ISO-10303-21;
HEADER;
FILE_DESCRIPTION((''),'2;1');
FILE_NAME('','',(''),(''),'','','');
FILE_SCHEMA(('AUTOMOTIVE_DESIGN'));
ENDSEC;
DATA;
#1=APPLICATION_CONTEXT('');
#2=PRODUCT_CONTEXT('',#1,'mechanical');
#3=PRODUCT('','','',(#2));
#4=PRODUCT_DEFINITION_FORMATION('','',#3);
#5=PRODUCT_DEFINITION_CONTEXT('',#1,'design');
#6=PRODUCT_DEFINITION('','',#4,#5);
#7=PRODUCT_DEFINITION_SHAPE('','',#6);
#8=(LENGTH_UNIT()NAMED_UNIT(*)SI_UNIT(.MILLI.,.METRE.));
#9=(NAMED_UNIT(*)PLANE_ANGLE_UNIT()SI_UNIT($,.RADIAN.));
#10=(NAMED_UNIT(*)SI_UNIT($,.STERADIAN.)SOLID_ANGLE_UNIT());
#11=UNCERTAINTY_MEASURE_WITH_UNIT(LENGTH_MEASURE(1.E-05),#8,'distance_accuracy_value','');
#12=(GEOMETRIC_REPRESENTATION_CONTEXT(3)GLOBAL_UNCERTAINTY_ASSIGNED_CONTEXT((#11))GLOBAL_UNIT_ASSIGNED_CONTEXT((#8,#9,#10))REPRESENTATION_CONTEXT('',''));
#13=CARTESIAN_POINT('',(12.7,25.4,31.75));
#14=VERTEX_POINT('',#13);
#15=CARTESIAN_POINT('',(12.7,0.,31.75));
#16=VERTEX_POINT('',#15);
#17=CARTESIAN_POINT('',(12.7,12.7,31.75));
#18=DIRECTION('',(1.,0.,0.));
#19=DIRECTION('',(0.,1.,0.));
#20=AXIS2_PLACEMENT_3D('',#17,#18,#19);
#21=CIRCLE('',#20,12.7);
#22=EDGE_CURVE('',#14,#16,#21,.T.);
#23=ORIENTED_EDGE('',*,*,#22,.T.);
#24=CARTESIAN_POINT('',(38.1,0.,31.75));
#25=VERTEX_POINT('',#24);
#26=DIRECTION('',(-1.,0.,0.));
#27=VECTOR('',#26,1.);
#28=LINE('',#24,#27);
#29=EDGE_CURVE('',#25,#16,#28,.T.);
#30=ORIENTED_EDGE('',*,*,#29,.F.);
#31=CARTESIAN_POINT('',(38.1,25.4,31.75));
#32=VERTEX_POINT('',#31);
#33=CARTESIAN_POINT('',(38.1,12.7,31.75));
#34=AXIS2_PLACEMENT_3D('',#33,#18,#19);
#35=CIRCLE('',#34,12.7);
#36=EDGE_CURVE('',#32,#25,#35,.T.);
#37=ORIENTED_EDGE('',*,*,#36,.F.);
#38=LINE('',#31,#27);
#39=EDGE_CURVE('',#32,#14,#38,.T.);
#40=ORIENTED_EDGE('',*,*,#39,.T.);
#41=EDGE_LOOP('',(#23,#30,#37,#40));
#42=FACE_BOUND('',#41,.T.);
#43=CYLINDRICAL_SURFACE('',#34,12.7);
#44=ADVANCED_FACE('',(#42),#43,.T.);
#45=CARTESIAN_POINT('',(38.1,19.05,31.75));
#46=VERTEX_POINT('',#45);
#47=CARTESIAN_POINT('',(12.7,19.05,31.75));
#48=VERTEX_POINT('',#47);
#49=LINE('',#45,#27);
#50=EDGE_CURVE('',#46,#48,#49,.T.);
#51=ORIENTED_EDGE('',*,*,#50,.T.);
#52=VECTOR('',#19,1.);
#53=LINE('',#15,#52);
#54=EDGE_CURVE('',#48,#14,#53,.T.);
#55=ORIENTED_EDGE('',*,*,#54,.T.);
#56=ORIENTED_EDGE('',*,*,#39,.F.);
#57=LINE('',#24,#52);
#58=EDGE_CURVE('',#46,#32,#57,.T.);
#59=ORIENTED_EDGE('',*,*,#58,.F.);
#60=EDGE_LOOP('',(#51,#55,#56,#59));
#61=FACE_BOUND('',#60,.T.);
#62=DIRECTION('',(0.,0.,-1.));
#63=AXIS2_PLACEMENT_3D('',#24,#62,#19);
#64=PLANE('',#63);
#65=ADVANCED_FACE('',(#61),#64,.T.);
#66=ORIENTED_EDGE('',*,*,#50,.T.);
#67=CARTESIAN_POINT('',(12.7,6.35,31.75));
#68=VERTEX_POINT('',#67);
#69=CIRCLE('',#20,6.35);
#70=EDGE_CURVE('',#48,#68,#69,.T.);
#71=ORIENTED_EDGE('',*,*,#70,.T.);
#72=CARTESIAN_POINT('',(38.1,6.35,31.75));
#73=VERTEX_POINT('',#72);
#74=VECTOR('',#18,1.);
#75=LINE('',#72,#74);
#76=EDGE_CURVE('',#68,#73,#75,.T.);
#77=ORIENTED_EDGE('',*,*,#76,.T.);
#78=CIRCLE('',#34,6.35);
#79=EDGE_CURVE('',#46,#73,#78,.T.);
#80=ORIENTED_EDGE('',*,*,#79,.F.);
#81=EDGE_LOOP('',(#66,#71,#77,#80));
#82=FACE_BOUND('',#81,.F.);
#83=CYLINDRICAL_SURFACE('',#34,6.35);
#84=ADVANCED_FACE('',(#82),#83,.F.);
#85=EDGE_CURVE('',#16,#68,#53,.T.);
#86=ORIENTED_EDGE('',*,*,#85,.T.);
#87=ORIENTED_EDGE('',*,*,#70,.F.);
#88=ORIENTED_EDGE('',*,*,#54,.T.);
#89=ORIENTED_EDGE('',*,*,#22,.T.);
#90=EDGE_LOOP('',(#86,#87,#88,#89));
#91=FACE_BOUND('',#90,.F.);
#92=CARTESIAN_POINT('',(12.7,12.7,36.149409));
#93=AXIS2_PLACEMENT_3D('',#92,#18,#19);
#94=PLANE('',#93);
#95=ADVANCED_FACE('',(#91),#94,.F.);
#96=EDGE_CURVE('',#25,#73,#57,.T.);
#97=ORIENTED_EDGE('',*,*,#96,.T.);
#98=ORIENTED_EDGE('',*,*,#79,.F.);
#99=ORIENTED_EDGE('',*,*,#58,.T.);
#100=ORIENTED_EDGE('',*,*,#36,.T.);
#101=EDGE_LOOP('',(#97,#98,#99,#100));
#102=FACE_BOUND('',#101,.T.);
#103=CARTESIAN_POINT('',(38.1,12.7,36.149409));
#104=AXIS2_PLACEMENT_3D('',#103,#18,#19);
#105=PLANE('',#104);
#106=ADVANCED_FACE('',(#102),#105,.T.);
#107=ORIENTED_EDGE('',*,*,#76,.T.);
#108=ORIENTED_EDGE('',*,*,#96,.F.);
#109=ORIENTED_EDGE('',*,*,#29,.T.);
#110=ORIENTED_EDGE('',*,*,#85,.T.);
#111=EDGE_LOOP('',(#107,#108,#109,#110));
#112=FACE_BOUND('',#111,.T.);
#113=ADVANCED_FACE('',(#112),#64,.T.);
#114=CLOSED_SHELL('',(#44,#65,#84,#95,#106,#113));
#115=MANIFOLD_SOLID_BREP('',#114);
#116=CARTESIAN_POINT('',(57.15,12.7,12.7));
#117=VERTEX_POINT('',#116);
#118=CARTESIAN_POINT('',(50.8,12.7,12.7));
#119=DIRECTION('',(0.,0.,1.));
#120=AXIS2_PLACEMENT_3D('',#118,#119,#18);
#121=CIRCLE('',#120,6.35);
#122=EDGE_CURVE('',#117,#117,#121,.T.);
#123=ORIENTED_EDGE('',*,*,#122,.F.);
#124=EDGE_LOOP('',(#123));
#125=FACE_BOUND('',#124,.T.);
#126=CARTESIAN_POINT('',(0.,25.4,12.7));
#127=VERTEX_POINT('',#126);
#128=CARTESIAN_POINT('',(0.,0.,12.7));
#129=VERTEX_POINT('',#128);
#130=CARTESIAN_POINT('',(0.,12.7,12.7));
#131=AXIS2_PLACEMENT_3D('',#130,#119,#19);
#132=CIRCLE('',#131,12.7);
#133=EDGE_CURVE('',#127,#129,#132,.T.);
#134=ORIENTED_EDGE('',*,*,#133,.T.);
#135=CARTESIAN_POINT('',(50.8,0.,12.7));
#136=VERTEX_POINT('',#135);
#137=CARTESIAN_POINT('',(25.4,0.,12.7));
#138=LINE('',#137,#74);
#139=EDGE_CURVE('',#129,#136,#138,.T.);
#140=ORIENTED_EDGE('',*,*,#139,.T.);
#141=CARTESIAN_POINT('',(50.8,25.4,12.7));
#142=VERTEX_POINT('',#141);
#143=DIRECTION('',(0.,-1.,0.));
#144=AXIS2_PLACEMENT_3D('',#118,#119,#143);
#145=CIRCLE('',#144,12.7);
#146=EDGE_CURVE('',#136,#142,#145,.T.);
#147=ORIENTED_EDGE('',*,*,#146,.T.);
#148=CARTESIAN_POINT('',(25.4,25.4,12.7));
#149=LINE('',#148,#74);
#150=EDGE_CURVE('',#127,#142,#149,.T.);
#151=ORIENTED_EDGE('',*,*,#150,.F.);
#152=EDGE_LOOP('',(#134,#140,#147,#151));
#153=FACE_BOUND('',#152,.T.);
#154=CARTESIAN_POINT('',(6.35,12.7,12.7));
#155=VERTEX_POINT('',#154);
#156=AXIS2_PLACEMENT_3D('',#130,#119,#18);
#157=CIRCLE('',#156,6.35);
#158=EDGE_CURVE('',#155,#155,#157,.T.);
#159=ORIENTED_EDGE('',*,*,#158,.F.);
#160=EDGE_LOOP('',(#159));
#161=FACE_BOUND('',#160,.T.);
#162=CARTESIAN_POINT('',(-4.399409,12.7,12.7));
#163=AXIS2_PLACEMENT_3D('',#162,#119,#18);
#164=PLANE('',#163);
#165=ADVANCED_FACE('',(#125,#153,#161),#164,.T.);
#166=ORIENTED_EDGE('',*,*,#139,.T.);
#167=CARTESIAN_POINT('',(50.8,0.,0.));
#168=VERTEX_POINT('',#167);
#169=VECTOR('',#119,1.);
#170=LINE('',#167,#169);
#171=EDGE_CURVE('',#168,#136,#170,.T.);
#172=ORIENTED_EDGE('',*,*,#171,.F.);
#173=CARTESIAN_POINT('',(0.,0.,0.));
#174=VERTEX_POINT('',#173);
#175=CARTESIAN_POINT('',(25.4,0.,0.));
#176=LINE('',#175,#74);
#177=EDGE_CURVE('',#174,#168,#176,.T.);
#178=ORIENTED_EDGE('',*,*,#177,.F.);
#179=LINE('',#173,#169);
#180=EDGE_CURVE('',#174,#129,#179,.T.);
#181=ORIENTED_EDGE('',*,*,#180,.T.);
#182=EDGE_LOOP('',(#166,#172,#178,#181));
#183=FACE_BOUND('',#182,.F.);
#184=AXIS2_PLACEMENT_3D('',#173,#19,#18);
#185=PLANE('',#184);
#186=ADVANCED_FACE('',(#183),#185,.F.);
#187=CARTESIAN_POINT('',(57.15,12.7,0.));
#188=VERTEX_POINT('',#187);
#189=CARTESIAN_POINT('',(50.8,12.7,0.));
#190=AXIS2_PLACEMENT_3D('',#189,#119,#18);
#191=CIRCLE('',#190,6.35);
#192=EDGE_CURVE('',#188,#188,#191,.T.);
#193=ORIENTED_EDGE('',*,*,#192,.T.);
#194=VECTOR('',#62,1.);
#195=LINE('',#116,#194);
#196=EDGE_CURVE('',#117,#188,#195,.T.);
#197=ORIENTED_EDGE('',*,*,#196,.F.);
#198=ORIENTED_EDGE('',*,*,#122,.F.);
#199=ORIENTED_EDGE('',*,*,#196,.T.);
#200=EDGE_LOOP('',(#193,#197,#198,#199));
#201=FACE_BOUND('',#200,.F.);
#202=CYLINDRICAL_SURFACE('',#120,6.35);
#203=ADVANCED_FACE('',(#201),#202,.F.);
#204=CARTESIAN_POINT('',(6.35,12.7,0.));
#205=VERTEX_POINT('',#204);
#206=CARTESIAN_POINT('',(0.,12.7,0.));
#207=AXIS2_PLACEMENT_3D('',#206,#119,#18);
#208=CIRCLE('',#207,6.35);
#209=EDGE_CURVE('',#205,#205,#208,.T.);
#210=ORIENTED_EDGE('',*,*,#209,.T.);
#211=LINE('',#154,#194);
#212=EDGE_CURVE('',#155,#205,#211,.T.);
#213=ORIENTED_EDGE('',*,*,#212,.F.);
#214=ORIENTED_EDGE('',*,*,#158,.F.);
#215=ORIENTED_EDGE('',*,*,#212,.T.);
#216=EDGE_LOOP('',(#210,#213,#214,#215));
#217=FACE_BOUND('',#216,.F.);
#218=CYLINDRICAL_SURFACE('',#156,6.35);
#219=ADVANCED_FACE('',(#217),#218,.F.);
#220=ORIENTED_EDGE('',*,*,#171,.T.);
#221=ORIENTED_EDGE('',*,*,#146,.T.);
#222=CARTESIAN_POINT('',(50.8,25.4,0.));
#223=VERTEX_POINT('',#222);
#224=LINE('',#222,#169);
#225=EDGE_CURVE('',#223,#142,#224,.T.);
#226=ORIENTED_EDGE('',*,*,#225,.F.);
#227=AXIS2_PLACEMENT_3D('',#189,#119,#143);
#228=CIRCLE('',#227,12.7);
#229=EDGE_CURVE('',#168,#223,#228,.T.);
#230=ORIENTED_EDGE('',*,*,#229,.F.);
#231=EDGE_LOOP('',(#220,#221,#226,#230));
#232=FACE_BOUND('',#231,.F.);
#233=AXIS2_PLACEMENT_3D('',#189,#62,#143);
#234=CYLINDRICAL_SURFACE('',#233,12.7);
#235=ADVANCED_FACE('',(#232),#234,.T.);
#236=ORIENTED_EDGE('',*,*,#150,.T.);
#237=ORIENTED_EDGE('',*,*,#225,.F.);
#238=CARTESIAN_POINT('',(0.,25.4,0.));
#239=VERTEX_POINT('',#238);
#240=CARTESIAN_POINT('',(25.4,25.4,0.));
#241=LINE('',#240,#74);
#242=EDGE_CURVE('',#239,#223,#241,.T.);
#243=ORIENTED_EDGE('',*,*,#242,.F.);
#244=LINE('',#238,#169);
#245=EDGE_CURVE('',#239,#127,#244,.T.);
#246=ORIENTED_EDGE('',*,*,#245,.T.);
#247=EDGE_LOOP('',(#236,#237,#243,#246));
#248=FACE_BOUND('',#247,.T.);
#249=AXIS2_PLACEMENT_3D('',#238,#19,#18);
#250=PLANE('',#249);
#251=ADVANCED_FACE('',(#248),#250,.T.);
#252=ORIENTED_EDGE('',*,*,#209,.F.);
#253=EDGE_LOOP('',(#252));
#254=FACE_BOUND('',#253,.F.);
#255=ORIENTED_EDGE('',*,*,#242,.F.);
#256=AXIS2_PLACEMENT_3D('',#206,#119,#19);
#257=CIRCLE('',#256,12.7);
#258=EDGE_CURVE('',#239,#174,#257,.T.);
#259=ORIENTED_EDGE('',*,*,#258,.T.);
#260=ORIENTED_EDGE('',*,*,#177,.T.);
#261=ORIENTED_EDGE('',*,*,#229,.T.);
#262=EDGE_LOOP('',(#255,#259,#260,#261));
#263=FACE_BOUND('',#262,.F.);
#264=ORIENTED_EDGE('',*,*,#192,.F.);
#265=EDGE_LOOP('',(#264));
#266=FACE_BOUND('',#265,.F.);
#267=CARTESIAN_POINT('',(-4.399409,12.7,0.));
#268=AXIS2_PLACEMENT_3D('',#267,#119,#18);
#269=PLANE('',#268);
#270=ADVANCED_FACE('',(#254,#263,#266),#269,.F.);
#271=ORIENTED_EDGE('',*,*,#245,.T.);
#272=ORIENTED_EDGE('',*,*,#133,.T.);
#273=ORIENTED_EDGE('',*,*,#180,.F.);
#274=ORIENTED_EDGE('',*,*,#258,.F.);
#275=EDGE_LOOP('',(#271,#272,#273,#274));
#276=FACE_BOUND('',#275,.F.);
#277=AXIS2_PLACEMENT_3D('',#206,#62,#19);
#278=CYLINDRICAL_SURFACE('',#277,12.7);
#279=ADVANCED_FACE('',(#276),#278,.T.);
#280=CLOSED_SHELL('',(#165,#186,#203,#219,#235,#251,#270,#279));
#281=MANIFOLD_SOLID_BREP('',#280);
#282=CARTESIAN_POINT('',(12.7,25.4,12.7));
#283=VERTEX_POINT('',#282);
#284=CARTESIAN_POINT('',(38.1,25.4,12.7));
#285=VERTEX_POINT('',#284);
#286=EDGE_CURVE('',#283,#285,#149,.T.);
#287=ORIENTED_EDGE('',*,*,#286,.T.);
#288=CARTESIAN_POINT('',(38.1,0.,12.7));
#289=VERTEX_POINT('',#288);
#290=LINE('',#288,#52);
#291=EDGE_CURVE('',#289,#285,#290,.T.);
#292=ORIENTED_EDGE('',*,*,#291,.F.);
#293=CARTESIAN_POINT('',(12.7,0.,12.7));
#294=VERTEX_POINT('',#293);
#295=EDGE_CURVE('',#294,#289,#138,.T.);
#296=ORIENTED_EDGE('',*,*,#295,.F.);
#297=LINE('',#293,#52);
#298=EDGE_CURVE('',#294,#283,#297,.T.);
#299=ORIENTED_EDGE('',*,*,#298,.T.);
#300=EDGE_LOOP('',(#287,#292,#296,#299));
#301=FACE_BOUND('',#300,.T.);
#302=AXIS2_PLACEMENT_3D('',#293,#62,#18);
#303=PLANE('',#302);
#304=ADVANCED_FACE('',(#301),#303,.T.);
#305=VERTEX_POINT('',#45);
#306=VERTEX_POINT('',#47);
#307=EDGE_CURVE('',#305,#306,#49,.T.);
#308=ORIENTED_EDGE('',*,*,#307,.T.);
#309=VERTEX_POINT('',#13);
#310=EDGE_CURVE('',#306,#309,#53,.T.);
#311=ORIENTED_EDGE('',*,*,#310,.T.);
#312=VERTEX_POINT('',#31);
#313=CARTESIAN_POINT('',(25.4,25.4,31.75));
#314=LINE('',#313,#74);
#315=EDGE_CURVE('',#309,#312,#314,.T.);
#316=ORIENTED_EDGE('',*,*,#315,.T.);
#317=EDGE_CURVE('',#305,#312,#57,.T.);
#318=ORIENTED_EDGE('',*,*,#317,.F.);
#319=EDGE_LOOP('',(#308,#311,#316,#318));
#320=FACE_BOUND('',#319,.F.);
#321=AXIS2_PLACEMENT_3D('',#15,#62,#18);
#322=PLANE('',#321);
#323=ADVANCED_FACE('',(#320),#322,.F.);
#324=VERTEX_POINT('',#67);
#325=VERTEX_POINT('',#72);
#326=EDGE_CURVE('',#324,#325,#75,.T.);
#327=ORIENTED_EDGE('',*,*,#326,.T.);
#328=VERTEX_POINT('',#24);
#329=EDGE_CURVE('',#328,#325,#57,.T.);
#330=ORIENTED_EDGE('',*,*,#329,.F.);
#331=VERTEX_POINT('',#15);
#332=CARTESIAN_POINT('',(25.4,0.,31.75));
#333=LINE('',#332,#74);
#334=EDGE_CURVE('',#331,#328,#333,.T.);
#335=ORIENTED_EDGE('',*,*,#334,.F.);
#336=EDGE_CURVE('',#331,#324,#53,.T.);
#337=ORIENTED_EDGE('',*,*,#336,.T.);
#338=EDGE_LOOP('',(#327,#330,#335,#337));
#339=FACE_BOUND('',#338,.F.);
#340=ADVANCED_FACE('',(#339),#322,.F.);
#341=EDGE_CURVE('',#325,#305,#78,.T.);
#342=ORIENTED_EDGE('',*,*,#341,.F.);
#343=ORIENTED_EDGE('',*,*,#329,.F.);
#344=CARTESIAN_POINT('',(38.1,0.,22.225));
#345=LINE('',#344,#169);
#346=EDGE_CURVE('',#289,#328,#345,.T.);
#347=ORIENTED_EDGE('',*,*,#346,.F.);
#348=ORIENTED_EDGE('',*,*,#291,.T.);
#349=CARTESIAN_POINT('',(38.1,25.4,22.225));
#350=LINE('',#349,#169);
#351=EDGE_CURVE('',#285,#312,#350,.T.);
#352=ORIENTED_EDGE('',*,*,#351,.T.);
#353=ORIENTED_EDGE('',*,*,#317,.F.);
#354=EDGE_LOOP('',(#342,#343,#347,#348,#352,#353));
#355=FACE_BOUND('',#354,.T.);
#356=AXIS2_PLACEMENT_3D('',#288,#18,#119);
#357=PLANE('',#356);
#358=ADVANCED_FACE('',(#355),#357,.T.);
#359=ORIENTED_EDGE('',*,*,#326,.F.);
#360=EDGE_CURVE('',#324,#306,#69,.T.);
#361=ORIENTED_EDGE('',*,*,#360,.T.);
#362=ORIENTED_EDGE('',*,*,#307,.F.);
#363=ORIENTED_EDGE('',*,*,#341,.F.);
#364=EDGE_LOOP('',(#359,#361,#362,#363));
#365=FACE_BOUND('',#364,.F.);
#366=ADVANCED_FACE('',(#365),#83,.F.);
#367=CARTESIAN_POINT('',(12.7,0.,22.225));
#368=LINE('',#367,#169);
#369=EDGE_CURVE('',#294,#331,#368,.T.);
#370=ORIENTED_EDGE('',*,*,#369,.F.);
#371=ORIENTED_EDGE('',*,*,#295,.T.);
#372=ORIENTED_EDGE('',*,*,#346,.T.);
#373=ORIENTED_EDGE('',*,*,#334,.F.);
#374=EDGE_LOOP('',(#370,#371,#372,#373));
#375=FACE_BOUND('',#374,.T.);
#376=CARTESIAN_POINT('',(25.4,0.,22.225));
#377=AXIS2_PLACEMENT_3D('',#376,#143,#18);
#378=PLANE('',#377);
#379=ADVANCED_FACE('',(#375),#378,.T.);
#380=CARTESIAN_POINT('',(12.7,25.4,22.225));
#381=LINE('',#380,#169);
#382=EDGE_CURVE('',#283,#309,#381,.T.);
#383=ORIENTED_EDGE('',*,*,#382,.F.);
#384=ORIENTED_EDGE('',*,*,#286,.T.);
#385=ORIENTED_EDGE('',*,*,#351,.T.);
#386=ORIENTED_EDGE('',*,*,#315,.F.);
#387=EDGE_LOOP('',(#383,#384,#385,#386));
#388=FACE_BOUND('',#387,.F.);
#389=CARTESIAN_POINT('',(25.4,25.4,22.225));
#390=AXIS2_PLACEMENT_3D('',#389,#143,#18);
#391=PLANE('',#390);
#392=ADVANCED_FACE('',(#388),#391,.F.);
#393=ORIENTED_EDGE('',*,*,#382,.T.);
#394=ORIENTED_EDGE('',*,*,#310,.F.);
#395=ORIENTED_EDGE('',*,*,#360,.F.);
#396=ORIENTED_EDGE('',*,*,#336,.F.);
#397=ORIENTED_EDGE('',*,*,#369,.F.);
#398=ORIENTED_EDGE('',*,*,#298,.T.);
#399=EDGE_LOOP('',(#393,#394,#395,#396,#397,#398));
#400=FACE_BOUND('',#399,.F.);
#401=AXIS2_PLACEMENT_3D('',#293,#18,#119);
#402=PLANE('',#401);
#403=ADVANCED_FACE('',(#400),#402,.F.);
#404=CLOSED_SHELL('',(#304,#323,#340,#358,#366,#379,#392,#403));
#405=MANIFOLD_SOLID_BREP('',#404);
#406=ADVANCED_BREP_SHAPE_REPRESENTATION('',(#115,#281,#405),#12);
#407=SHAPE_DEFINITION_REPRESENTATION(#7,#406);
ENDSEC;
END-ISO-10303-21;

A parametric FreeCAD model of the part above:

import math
import FreeCAD as App
import Part
import Sketcher
from FreeCAD import Vector
Q = App.Units.Quantity

doc = App.newDocument("Part")
body = doc.addObject("PartDesign::Body", "Body")

sketch1 = body.newObject("Sketcher::SketchObject", "Sketch")
sketch1.AttachmentSupport = (doc.getObject("XY_Plane"), [""])
sketch1.MapMode = "FlatFace"
sketch1.addGeometry(Part.ArcOfCircle(Part.Circle(Vector(0, 12.7, 0), Vector(0, 0, 1), 12.7), math.radians(90), math.radians(270)), False)
sketch1.addGeometry(Part.LineSegment(Vector(0, 0, 0), Vector(50.8, 0, 0)), False)
sketch1.addGeometry(Part.ArcOfCircle(Part.Circle(Vector(50.8, 12.7, 0), Vector(0, 0, 1), 12.7), math.radians(-90), math.radians(90)), False)
sketch1.addGeometry(Part.LineSegment(Vector(50.8, 25.4, 0), Vector(0, 25.4, 0)), False)
sketch1.addConstraint(Sketcher.Constraint("Tangent", 0, 2, 1, 1))
sketch1.addConstraint(Sketcher.Constraint("Tangent", 1, 2, 2, 1))
sketch1.addConstraint(Sketcher.Constraint("Tangent", 2, 2, 3, 1))
sketch1.addConstraint(Sketcher.Constraint("Tangent", 3, 2, 0, 1))
sketch1.addConstraint(Sketcher.Constraint("Horizontal", 1))
sketch1.addConstraint(Sketcher.Constraint("Horizontal", 3))
sketch1.addConstraint(Sketcher.Constraint("Coincident", 0, 2, -1, 1))
sketch1.addConstraint(Sketcher.Constraint("Radius", 0, Q("0.5 in")))
sketch1.addConstraint(Sketcher.Constraint("DistanceX", 1, 1, 1, 2, Q("2 in")))
pad1 = body.newObject("PartDesign::Pad", "Pad")
pad1.Profile = sketch1
pad1.Length = Q("0.5 in")

sketch2 = body.newObject("Sketcher::SketchObject", "Sketch001")
sketch2.AttachmentSupport = (doc.getObject("XY_Plane"), [""])
sketch2.MapMode = "FlatFace"
sketch2.AttachmentOffset = App.Placement(Vector(0, 0, 0.5 * 25.4), App.Rotation())
sketch2.addGeometry(Part.Circle(Vector(0, 12.7, 0), Vector(0, 0, 1), 6.35), False)
sketch2.addGeometry(Part.Circle(Vector(50.8, 12.7, 0), Vector(0, 0, 1), 6.35), False)
sketch2.addConstraint(Sketcher.Constraint("Equal", 0, 1))
sketch2.addConstraint(Sketcher.Constraint("PointOnObject", 0, 3, -2))
sketch2.addConstraint(Sketcher.Constraint("Horizontal", 0, 3, 1, 3))
sketch2.addConstraint(Sketcher.Constraint("Diameter", 0, Q("0.5 in")))
sketch2.addConstraint(Sketcher.Constraint("DistanceX", -1, 1, 1, 3, Q("2 in")))
sketch2.addConstraint(Sketcher.Constraint("DistanceY", -1, 1, 0, 3, Q("0.5 in")))
pocket1 = body.newObject("PartDesign::Pocket", "Pocket")
pocket1.Profile = sketch2
pocket1.Length = Q("1 in")

sketch3 = body.newObject("Sketcher::SketchObject", "Sketch002")
sketch3.AttachmentSupport = (doc.getObject("YZ_Plane"), [""])
sketch3.MapMode = "FlatFace"
sketch3.AttachmentOffset = App.Placement(Vector(0, 0, 1.5 * 25.4), App.Rotation())
sketch3.addGeometry(Part.Circle(Vector(12.7, 31.75, 0), Vector(0, 0, 1), 6.35), False)
sketch3.addConstraint(Sketcher.Constraint("Diameter", 0, Q("0.5 in")))
sketch3.addConstraint(Sketcher.Constraint("DistanceX", -1, 1, 0, 3, Q("0.5 in")))
sketch3.addConstraint(Sketcher.Constraint("DistanceY", -1, 1, 0, 3, Q("1.25 in")))
pocket2 = body.newObject("PartDesign::Pocket", "Pocket001")
pocket2.Profile = sketch3
pocket2.Length = Q("1 in")
body2 = doc.addObject("PartDesign::Body", "Body001")

sketch4 = body2.newObject("Sketcher::SketchObject", "Sketch003")
sketch4.AttachmentSupport = (doc.getObject("XZ_Plane001"), [""])
sketch4.MapMode = "FlatFace"
sketch4.addGeometry(Part.LineSegment(Vector(12.7, 31.75, 0), Vector(12.7, 12.7, 0)), False)
sketch4.addGeometry(Part.LineSegment(Vector(12.7, 12.7, 0), Vector(38.1, 12.7, 0)), False)
sketch4.addGeometry(Part.LineSegment(Vector(38.1, 12.7, 0), Vector(38.1, 31.75, 0)), False)
sketch4.addGeometry(Part.LineSegment(Vector(38.1, 31.75, 0), Vector(12.7, 31.75, 0)), False)
sketch4.addConstraint(Sketcher.Constraint("Coincident", 0, 2, 1, 1))
sketch4.addConstraint(Sketcher.Constraint("Coincident", 1, 2, 2, 1))
sketch4.addConstraint(Sketcher.Constraint("Coincident", 2, 2, 3, 1))
sketch4.addConstraint(Sketcher.Constraint("Coincident", 3, 2, 0, 1))
sketch4.addConstraint(Sketcher.Constraint("Vertical", 0))
sketch4.addConstraint(Sketcher.Constraint("Horizontal", 1))
sketch4.addConstraint(Sketcher.Constraint("Vertical", 2))
sketch4.addConstraint(Sketcher.Constraint("Horizontal", 3))
sketch4.addConstraint(Sketcher.Constraint("DistanceX", 1, 1, 1, 2, Q("1 in")))
sketch4.addConstraint(Sketcher.Constraint("DistanceY", 0, 2, 0, 1, Q("0.75 in")))
sketch4.addConstraint(Sketcher.Constraint("DistanceX", -1, 1, 0, 2, Q("0.5 in")))
sketch4.addConstraint(Sketcher.Constraint("DistanceY", -1, 1, 0, 2, Q("0.5 in")))
pad2 = body2.newObject("PartDesign::Pad", "Pad001")
pad2.Profile = sketch4
pad2.Length = Q("1 in")
pad2.Reversed = True
body3 = doc.addObject("PartDesign::Body", "Body002")

sketch5 = body3.newObject("Sketcher::SketchObject", "Sketch004")
sketch5.AttachmentSupport = (doc.getObject("YZ_Plane002"), [""])
sketch5.MapMode = "FlatFace"
sketch5.AttachmentOffset = App.Placement(Vector(0, 0, 1.5 * 25.4), App.Rotation())
sketch5.addGeometry(Part.LineSegment(Vector(0, 31.75, 0), Vector(25.4, 31.75, 0)), False)
sketch5.addGeometry(Part.ArcOfCircle(Part.Circle(Vector(12.7, 31.75, 0), Vector(0, 0, 1), 12.7), math.radians(0), math.radians(180)), False)
sketch5.addConstraint(Sketcher.Constraint("Coincident", 0, 1, 1, 2))
sketch5.addConstraint(Sketcher.Constraint("Coincident", 1, 1, 0, 2))
sketch5.addConstraint(Sketcher.Constraint("Horizontal", 0))
sketch5.addConstraint(Sketcher.Constraint("PointOnObject", 0, 1, -2))
sketch5.addConstraint(Sketcher.Constraint("Horizontal", 1, 3, 0, 1))
sketch5.addConstraint(Sketcher.Constraint("Radius", 1, Q("0.5 in")))
sketch5.addConstraint(Sketcher.Constraint("DistanceY", -1, 1, 1, 3, Q("1.25 in")))
pad3 = body3.newObject("PartDesign::Pad", "Pad002")
pad3.Profile = sketch5
pad3.Length = Q("1 in")
pad3.Reversed = True
body4 = doc.addObject("PartDesign::Body", "Body003")

sketch6 = body4.newObject("Sketcher::SketchObject", "Sketch005")
sketch6.AttachmentSupport = (doc.getObject("YZ_Plane003"), [""])
sketch6.MapMode = "FlatFace"
sketch6.AttachmentOffset = App.Placement(Vector(0, 0, 1.5 * 25.4), App.Rotation())
sketch6.addGeometry(Part.Circle(Vector(12.7, 31.75, 0), Vector(0, 0, 1), 6.35), False)
sketch6.addConstraint(Sketcher.Constraint("Diameter", 0, Q("0.5 in")))
sketch6.addConstraint(Sketcher.Constraint("DistanceX", -1, 1, 0, 3, Q("0.5 in")))
sketch6.addConstraint(Sketcher.Constraint("DistanceY", -1, 1, 0, 3, Q("1.25 in")))
pad4 = body4.newObject("PartDesign::Pad", "Pad003")
pad4.Profile = sketch6
pad4.Length = Q("1 in")
pad4.Reversed = True
doc.recompute()

body5 = doc.addObject("PartDesign::Body", "Body004")
body5.BaseFeature = body4
boolean = body2.newObject("PartDesign::Boolean", "Boolean")
boolean.Type = "Cut"
boolean.addObjects([body5])
doc.recompute()

boolean2 = body3.newObject("PartDesign::Boolean", "Boolean001")
boolean2.Type = "Cut"
boolean2.addObjects([body4])

doc.recompute()
